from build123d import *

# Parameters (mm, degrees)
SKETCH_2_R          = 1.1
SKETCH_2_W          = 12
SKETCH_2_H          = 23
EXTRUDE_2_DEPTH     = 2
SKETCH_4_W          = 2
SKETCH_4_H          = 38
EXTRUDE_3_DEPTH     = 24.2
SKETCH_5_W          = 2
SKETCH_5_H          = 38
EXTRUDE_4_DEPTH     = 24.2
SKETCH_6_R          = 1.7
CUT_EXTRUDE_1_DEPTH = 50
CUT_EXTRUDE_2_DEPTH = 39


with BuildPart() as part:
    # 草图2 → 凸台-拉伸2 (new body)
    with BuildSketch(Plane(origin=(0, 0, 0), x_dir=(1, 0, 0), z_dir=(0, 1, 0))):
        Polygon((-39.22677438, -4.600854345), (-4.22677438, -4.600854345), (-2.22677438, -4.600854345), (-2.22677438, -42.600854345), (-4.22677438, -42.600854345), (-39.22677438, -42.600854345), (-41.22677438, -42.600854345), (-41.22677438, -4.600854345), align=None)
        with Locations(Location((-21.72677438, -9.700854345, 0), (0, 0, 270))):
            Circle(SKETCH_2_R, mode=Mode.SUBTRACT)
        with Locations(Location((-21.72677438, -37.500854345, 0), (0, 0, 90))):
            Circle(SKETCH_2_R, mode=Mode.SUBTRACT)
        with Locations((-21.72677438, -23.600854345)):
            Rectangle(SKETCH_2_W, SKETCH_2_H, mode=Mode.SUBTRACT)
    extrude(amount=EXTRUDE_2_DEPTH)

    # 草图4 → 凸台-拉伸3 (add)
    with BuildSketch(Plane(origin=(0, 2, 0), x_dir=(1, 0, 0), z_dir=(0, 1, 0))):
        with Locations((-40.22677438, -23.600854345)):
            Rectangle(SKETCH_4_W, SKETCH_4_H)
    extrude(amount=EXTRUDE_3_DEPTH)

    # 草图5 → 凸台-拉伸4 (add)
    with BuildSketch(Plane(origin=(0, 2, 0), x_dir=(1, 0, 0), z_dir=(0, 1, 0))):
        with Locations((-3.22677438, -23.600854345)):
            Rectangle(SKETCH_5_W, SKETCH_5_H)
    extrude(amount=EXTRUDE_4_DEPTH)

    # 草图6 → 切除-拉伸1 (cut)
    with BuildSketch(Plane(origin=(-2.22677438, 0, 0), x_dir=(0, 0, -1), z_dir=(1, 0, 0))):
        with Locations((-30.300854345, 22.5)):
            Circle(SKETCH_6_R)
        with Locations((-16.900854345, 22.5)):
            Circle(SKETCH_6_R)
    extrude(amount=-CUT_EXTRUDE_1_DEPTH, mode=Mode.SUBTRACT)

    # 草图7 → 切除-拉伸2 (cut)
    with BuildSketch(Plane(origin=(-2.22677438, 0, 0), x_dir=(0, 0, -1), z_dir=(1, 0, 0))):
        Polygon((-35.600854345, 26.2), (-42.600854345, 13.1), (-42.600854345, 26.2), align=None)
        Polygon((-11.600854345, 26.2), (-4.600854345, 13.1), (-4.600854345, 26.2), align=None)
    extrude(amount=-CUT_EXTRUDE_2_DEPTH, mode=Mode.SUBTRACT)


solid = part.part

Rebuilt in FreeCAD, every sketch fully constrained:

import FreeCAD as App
import Part
import Sketcher
from FreeCAD import Vector


def add_polygon(sketch, points):
    """Adds a closed chain of lines whose ends are joined by coincident constraints."""
    first, n = sketch.GeometryCount, len(points)
    for a, b in zip(points, points[1:] + points[:1]):
        sketch.addGeometry(Part.LineSegment(App.Vector(*a, 0), App.Vector(*b, 0)), False)
    for i in range(n):
        sketch.addConstraint(Sketcher.Constraint("Coincident", first + i, 2, first + (i + 1) % n, 1))

doc = App.newDocument("Part")
body = doc.addObject("PartDesign::Body", "Body")

# Sketch on XZ plane
sketch1 = body.newObject("Sketcher::SketchObject", "Sketch")
sketch1.AttachmentSupport = (doc.getObject("XZ_Plane"), [""])
sketch1.MapMode = "FlatFace"
add_polygon(sketch1, [(-2.2, 4.6), (-41.2, 4.6), (-41.2, 42.6), (-2.2, 42.6)])  # lines 0-3
sketch1.addGeometry(Part.Circle(Vector(-21.7, 37.5, 0), Vector(0, 0, 1), 1.1), False)  # 4
add_polygon(sketch1, [(-27.7, 35.1), (-27.7, 12.1), (-15.7, 12.1), (-15.7, 35.1)])  # lines 5-8
sketch1.addGeometry(Part.Circle(Vector(-21.7, 9.7, 0), Vector(0, 0, 1), 1.1), False)  # 9
sketch1.addConstraint([
    Sketcher.Constraint("Horizontal", 0),
    Sketcher.Constraint("Vertical", 1),
    Sketcher.Constraint("Horizontal", 2),
    Sketcher.Constraint("Vertical", 3),
    Sketcher.Constraint("Vertical", 5),
    Sketcher.Constraint("Horizontal", 6),
    Sketcher.Constraint("Vertical", 7),
    Sketcher.Constraint("Horizontal", 8),
    Sketcher.Constraint("Equal", 4, 9),
    Sketcher.Constraint("Vertical", 4, 3, 9, 3),
    Sketcher.Constraint("Diameter", 4, 2.2),
    Sketcher.Constraint("DistanceX", 0, 2, 0, 1, 39.0),
    Sketcher.Constraint("DistanceX", 6, 1, 6, 2, 12.0),
    Sketcher.Constraint("DistanceY", 1, 1, 1, 2, 38.0),
    Sketcher.Constraint("DistanceY", 5, 2, 5, 1, 23.0),
    Sketcher.Constraint("DistanceX", 5, 2, 9, 3, 6.0),
    Sketcher.Constraint("DistanceY", 9, 3, 4, 3, 27.8),
    Sketcher.Constraint("DistanceX", 0, 2, 9, 3, 19.5),
    Sketcher.Constraint("DistanceY", 0, 2, 9, 3, 5.1),
    Sketcher.Constraint("DistanceY", 9, 3, 5, 2, 2.4),
    Sketcher.Constraint("DistanceX", 4, 3, -1, 1, 21.726774),
    Sketcher.Constraint("DistanceY", -1, 1, 4, 3, 37.500854),
])
pad1 = body.newObject("PartDesign::Pad", "Pad")
pad1.Profile = sketch1
pad1.Length = 2
pad1.Reversed = True

# Sketch on XZ plane
sketch2 = body.newObject("Sketcher::SketchObject", "Sketch001")
sketch2.AttachmentSupport = (doc.getObject("XZ_Plane"), [""])
sketch2.MapMode = "FlatFace"
sketch2.AttachmentOffset = App.Placement(Vector(0, 0, -2), App.Rotation())
add_polygon(sketch2, [(-41.2, 4.6), (-41.2, 42.6), (-39.2, 42.6), (-39.2, 4.6)])  # lines 0-3
sketch2.addConstraint([
    Sketcher.Constraint("Vertical", 0),
    Sketcher.Constraint("Horizontal", 1),
    Sketcher.Constraint("Vertical", 2),
    Sketcher.Constraint("Horizontal", 3),
    Sketcher.Constraint("DistanceX", 1, 1, 1, 2, 2.0),
    Sketcher.Constraint("DistanceY", 0, 1, 0, 2, 38.0),
    Sketcher.Constraint("DistanceX", 0, 2, -1, 1, 41.226774),
    Sketcher.Constraint("DistanceY", -1, 1, 0, 2, 42.600854),
])
pad2 = body.newObject("PartDesign::Pad", "Pad001")
pad2.Profile = sketch2
pad2.Length = 24.2
pad2.Reversed = True

# Sketch on XZ plane
sketch3 = body.newObject("Sketcher::SketchObject", "Sketch002")
sketch3.AttachmentSupport = (doc.getObject("XZ_Plane"), [""])
sketch3.MapMode = "FlatFace"
sketch3.AttachmentOffset = App.Placement(Vector(0, 0, -2), App.Rotation())
add_polygon(sketch3, [(-4.2, 4.6), (-4.2, 42.6), (-2.2, 42.6), (-2.2, 4.6)])  # lines 0-3
sketch3.addConstraint([
    Sketcher.Constraint("Vertical", 0),
    Sketcher.Constraint("Horizontal", 1),
    Sketcher.Constraint("Vertical", 2),
    Sketcher.Constraint("Horizontal", 3),
    Sketcher.Constraint("DistanceX", 1, 1, 1, 2, 2.0),
    Sketcher.Constraint("DistanceY", 0, 1, 0, 2, 38.0),
    Sketcher.Constraint("DistanceX", 0, 2, -1, 1, 4.226774),
    Sketcher.Constraint("DistanceY", -1, 1, 0, 2, 42.600854),
])
pad3 = body.newObject("PartDesign::Pad", "Pad002")
pad3.Profile = sketch3
pad3.Length = 24.2
pad3.Reversed = True

# Sketch on YZ plane
sketch4 = body.newObject("Sketcher::SketchObject", "Sketch003")
sketch4.AttachmentSupport = (doc.getObject("YZ_Plane"), [""])
sketch4.MapMode = "FlatFace"
sketch4.AttachmentOffset = App.Placement(Vector(0, 0, -2.226774), App.Rotation())
sketch4.addGeometry([
    Part.Circle(Vector(22.5, 30.3, 0), Vector(0, 0, 1), 1.7),
    Part.Circle(Vector(22.5, 16.9, 0), Vector(0, 0, 1), 1.7),
], False)
sketch4.addConstraint([
    Sketcher.Constraint("Equal", 0, 1),
    Sketcher.Constraint("Vertical", 0, 3, 1, 3),
    Sketcher.Constraint("Diameter", 0, 3.4),
    Sketcher.Constraint("DistanceX", -1, 1, 0, 3, 22.5),
    Sketcher.Constraint("DistanceY", 1, 3, 0, 3, 13.4),
    Sketcher.Constraint("DistanceY", -1, 1, 0, 3, 30.300854),
])
pocket1 = body.newObject("PartDesign::Pocket", "Pocket")
pocket1.Profile = sketch4
pocket1.Length = 50

# Sketch on YZ plane
sketch5 = body.newObject("Sketcher::SketchObject", "Sketch004")
sketch5.AttachmentSupport = (doc.getObject("YZ_Plane"), [""])
sketch5.MapMode = "FlatFace"
sketch5.AttachmentOffset = App.Placement(Vector(0, 0, -2.226774), App.Rotation())
add_polygon(sketch5, [(13, 43), (26, 36), (26, 43)])  # lines 0-2
add_polygon(sketch5, [(26, 12), (13, 5), (26, 5)])  # lines 3-5
sketch5.addConstraint([
    Sketcher.Constraint("Vertical", 1),
    Sketcher.Constraint("Horizontal", 2),
    Sketcher.Constraint("Horizontal", 4),
    Sketcher.Constraint("Vertical", 5),
    Sketcher.Constraint("Vertical", 2, 2, 3, 2),
    Sketcher.Constraint("Vertical", 1, 2, 4, 2),
    Sketcher.Constraint("Equal", 1, 5),
    Sketcher.Constraint("DistanceY", 1, 1, 1, 2, 7.0),
    Sketcher.Constraint("DistanceX", 2, 2, 2, 1, 13.1),
    Sketcher.Constraint("DistanceY", 3, 2, 0, 2, 31.0),
    Sketcher.Constraint("DistanceX", -1, 1, 0, 2, 26.2),
    Sketcher.Constraint("DistanceY", -1, 1, 0, 2, 35.600854),
])
pocket2 = body.newObject("PartDesign::Pocket", "Pocket001")
pocket2.Profile = sketch5
pocket2.Length = 39

doc.recompute()
